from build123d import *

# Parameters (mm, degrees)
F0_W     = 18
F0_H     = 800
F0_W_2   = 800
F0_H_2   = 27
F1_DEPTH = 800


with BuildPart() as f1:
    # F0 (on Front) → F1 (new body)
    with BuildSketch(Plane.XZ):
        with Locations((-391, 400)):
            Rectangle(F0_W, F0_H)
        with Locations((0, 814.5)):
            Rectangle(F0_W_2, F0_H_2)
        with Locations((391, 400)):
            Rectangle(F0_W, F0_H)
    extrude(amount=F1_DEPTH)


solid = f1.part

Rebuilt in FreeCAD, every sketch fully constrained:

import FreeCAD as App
import Part
import Sketcher
from FreeCAD import Vector
Q = App.Units.Quantity


def add_polygon(sketch, points):
    """Adds a closed chain of lines whose ends are joined by coincident constraints."""
    first, n = sketch.GeometryCount, len(points)
    for a, b in zip(points, points[1:] + points[:1]):
        sketch.addGeometry(Part.LineSegment(App.Vector(*a, 0), App.Vector(*b, 0)), False)
    for i in range(n):
        sketch.addConstraint(Sketcher.Constraint("Coincident", first + i, 2, first + (i + 1) % n, 1))

doc = App.newDocument("Part")
body = doc.addObject("PartDesign::Body", "Body")
body.AllowCompound = True

# Sketch on XZ plane
sketch1 = body.newObject("Sketcher::SketchObject", "Sketch")
sketch1.AttachmentSupport = (doc.getObject("XZ_Plane"), [""])
sketch1.MapMode = "FlatFace"
add_polygon(sketch1, [(-400, 800), (-400, 0), (-382, 0), (-382, 800)])  # lines 0-3
add_polygon(sketch1, [(-400, 828), (-400, 801), (400, 801), (400, 828)])  # lines 4-7
add_polygon(sketch1, [(382, 800), (382, 0), (400, 0), (400, 800)])  # lines 8-11
sketch1.addConstraint(Sketcher.Constraint("Vertical", 0))
sketch1.addConstraint(Sketcher.Constraint("Horizontal", 1))
sketch1.addConstraint(Sketcher.Constraint("Vertical", 2))
sketch1.addConstraint(Sketcher.Constraint("Horizontal", 3))
sketch1.addConstraint(Sketcher.Constraint("Vertical", 4))
sketch1.addConstraint(Sketcher.Constraint("Horizontal", 5))
sketch1.addConstraint(Sketcher.Constraint("Vertical", 6))
sketch1.addConstraint(Sketcher.Constraint("Horizontal", 7))
sketch1.addConstraint(Sketcher.Constraint("Vertical", 8))
sketch1.addConstraint(Sketcher.Constraint("Horizontal", 9))
sketch1.addConstraint(Sketcher.Constraint("Vertical", 10))
sketch1.addConstraint(Sketcher.Constraint("Horizontal", 11))
sketch1.addConstraint(Sketcher.Constraint("Symmetric", 1, 2, 8, 2, -1, 1))
sketch1.addConstraint(Sketcher.Constraint("Symmetric", 0, 2, 9, 2, -2))
sketch1.addConstraint(Sketcher.Constraint("Horizontal", 3, 2, 10, 2))
sketch1.addConstraint(Sketcher.Constraint("Vertical", 3, 2, 4, 2))
sketch1.addConstraint(Sketcher.Constraint("Vertical", 6, 2, 9, 2))
sketch1.addConstraint(Sketcher.Constraint("Equal", 7, 0))
sketch1.addConstraint(Sketcher.Constraint("DistanceX", 1, 1, 1, 2, Q("18 mm")))
sketch1.addConstraint(Sketcher.Constraint("DistanceX", 5, 1, 5, 2, Q("800 mm")))
sketch1.addConstraint(Sketcher.Constraint("DistanceY", 4, 2, 4, 1, Q("27 mm")))
sketch1.addConstraint(Sketcher.Constraint("DistanceY", -1, 1, 4, 2, Q("801 mm")))
pad1 = body.newObject("PartDesign::Pad", "Pad")
pad1.Profile = sketch1
pad1.Length = 800

doc.recompute()
